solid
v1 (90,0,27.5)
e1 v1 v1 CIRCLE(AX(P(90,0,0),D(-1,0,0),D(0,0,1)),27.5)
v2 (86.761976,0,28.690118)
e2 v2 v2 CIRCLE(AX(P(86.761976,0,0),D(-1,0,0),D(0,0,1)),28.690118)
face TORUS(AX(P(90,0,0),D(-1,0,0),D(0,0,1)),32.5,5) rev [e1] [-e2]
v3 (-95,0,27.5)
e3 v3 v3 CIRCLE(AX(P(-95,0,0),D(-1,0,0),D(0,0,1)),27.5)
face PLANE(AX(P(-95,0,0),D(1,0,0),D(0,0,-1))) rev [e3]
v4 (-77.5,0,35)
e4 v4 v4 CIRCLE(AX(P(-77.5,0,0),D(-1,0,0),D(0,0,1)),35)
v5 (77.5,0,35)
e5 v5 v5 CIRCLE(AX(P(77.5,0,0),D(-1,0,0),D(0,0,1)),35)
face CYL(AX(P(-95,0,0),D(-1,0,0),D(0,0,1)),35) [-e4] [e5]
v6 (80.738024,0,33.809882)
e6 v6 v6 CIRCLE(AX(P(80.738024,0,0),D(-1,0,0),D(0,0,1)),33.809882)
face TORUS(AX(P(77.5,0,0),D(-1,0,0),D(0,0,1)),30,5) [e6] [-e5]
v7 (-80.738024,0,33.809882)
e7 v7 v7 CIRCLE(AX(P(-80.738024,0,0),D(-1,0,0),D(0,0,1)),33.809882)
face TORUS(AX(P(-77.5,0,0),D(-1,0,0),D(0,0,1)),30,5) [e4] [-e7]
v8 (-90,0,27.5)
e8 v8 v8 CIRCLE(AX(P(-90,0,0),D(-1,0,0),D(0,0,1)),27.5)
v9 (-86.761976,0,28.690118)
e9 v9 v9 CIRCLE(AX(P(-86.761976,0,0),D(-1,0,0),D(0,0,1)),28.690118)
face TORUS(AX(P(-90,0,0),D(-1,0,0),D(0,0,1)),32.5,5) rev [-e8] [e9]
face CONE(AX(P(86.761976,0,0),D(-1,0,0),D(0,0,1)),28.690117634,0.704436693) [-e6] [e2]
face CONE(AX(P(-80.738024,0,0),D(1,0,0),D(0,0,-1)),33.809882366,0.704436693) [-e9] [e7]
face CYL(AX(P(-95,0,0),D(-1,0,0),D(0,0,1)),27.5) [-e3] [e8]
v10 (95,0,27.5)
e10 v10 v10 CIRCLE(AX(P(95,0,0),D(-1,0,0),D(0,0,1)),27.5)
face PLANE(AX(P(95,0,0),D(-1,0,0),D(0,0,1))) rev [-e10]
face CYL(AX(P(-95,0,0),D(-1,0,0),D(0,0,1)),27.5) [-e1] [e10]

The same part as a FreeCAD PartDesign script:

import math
import FreeCAD as App
import Part
import Sketcher

doc = App.newDocument("Part")
body = doc.addObject("PartDesign::Body", "Body")

sketch1 = body.newObject("Sketcher::SketchObject", "Sketch")
sketch1.AttachmentSupport = (doc.getObject("XZ_Plane"), [""])
sketch1.MapMode = "FlatFace"
sketch1.addGeometry([
    Part.LineSegment(App.Vector(95, 0, 0), App.Vector(95, -27.5, 0)),
    Part.LineSegment(App.Vector(95, -27.5, 0), App.Vector(90, -27.5, 0)),
    Part.ArcOfCircle(Part.Circle(App.Vector(90, -32.5, 0), App.Vector(0, 0, 1), 5), math.radians(90), math.radians(130)),
    Part.LineSegment(App.Vector(86.8, -28.7, 0), App.Vector(80.7, -33.8, 0)),
    Part.ArcOfCircle(Part.Circle(App.Vector(77.5, -30, 0), App.Vector(0, 0, 1), 5), math.radians(-90), math.radians(-50)),
    Part.LineSegment(App.Vector(77.5, -35, 0), App.Vector(-77.5, -35, 0)),
    Part.ArcOfCircle(Part.Circle(App.Vector(-77.5, -30, 0), App.Vector(0, 0, 1), 5), math.radians(-130), math.radians(-90)),
    Part.LineSegment(App.Vector(-80.7, -33.8, 0), App.Vector(-86.8, -28.7, 0)),
    Part.ArcOfCircle(Part.Circle(App.Vector(-90, -32.5, 0), App.Vector(0, 0, 1), 5), math.radians(50), math.radians(90)),
    Part.LineSegment(App.Vector(-90, -27.5, 0), App.Vector(-95, -27.5, 0)),
    Part.LineSegment(App.Vector(-95, -27.5, 0), App.Vector(-95, 0, 0)),
    Part.LineSegment(App.Vector(-95, 0, 0), App.Vector(95, 0, 0)),
], False)
sketch1.addConstraint([
    Sketcher.Constraint("Coincident", 0, 2, 1, 1),
    Sketcher.Constraint("Tangent", 1, 2, 2, 1),
    Sketcher.Constraint("Tangent", 2, 2, 3, 1),
    Sketcher.Constraint("Tangent", 3, 2, 4, 2),
    Sketcher.Constraint("Tangent", 4, 1, 5, 1),
    Sketcher.Constraint("Tangent", 5, 2, 6, 2),
    Sketcher.Constraint("Tangent", 6, 1, 7, 1),
    Sketcher.Constraint("Tangent", 7, 2, 8, 1),
    Sketcher.Constraint("Tangent", 8, 2, 9, 1),
    Sketcher.Constraint("Coincident", 9, 2, 10, 1),
    Sketcher.Constraint("Coincident", 10, 2, 11, 1),
    Sketcher.Constraint("Coincident", 11, 2, 0, 1),
    Sketcher.Constraint("Vertical", 0),
    Sketcher.Constraint("Horizontal", 1),
    Sketcher.Constraint("Horizontal", 5),
    Sketcher.Constraint("Horizontal", 9),
    Sketcher.Constraint("Vertical", 10),
    Sketcher.Constraint("Horizontal", 11),
    Sketcher.Constraint("Equal", 2, 4),
    Sketcher.Constraint("Equal", 4, 6),
    Sketcher.Constraint("Equal", 6, 8),
    Sketcher.Constraint("Symmetric", 10, 2, 11, 2, -1, 1),
    Sketcher.Constraint("Symmetric", 2, 3, 8, 3, -2),
    Sketcher.Constraint("Horizontal", 3, 2, 6, 1),
    Sketcher.Constraint("Radius", 2, 5.0),
    Sketcher.Constraint("DistanceX", 1, 2, 1, 1, 5.0),
    Sketcher.Constraint("DistanceX", 5, 2, 5, 1, 155.0),
    Sketcher.Constraint("DistanceX", 11, 1, 11, 2, 190.0),
    Sketcher.Constraint("DistanceY", 0, 2, 0, 1, 27.5),
    Sketcher.Constraint("DistanceY", 4, 3, -1, 1, 30.0),
])
revolution = body.newObject("PartDesign::Revolution", "Revolution")
revolution.Profile = sketch1
revolution.ReferenceAxis = (sketch1, ["H_Axis"])
revolution.Angle = 360

doc.recompute()
